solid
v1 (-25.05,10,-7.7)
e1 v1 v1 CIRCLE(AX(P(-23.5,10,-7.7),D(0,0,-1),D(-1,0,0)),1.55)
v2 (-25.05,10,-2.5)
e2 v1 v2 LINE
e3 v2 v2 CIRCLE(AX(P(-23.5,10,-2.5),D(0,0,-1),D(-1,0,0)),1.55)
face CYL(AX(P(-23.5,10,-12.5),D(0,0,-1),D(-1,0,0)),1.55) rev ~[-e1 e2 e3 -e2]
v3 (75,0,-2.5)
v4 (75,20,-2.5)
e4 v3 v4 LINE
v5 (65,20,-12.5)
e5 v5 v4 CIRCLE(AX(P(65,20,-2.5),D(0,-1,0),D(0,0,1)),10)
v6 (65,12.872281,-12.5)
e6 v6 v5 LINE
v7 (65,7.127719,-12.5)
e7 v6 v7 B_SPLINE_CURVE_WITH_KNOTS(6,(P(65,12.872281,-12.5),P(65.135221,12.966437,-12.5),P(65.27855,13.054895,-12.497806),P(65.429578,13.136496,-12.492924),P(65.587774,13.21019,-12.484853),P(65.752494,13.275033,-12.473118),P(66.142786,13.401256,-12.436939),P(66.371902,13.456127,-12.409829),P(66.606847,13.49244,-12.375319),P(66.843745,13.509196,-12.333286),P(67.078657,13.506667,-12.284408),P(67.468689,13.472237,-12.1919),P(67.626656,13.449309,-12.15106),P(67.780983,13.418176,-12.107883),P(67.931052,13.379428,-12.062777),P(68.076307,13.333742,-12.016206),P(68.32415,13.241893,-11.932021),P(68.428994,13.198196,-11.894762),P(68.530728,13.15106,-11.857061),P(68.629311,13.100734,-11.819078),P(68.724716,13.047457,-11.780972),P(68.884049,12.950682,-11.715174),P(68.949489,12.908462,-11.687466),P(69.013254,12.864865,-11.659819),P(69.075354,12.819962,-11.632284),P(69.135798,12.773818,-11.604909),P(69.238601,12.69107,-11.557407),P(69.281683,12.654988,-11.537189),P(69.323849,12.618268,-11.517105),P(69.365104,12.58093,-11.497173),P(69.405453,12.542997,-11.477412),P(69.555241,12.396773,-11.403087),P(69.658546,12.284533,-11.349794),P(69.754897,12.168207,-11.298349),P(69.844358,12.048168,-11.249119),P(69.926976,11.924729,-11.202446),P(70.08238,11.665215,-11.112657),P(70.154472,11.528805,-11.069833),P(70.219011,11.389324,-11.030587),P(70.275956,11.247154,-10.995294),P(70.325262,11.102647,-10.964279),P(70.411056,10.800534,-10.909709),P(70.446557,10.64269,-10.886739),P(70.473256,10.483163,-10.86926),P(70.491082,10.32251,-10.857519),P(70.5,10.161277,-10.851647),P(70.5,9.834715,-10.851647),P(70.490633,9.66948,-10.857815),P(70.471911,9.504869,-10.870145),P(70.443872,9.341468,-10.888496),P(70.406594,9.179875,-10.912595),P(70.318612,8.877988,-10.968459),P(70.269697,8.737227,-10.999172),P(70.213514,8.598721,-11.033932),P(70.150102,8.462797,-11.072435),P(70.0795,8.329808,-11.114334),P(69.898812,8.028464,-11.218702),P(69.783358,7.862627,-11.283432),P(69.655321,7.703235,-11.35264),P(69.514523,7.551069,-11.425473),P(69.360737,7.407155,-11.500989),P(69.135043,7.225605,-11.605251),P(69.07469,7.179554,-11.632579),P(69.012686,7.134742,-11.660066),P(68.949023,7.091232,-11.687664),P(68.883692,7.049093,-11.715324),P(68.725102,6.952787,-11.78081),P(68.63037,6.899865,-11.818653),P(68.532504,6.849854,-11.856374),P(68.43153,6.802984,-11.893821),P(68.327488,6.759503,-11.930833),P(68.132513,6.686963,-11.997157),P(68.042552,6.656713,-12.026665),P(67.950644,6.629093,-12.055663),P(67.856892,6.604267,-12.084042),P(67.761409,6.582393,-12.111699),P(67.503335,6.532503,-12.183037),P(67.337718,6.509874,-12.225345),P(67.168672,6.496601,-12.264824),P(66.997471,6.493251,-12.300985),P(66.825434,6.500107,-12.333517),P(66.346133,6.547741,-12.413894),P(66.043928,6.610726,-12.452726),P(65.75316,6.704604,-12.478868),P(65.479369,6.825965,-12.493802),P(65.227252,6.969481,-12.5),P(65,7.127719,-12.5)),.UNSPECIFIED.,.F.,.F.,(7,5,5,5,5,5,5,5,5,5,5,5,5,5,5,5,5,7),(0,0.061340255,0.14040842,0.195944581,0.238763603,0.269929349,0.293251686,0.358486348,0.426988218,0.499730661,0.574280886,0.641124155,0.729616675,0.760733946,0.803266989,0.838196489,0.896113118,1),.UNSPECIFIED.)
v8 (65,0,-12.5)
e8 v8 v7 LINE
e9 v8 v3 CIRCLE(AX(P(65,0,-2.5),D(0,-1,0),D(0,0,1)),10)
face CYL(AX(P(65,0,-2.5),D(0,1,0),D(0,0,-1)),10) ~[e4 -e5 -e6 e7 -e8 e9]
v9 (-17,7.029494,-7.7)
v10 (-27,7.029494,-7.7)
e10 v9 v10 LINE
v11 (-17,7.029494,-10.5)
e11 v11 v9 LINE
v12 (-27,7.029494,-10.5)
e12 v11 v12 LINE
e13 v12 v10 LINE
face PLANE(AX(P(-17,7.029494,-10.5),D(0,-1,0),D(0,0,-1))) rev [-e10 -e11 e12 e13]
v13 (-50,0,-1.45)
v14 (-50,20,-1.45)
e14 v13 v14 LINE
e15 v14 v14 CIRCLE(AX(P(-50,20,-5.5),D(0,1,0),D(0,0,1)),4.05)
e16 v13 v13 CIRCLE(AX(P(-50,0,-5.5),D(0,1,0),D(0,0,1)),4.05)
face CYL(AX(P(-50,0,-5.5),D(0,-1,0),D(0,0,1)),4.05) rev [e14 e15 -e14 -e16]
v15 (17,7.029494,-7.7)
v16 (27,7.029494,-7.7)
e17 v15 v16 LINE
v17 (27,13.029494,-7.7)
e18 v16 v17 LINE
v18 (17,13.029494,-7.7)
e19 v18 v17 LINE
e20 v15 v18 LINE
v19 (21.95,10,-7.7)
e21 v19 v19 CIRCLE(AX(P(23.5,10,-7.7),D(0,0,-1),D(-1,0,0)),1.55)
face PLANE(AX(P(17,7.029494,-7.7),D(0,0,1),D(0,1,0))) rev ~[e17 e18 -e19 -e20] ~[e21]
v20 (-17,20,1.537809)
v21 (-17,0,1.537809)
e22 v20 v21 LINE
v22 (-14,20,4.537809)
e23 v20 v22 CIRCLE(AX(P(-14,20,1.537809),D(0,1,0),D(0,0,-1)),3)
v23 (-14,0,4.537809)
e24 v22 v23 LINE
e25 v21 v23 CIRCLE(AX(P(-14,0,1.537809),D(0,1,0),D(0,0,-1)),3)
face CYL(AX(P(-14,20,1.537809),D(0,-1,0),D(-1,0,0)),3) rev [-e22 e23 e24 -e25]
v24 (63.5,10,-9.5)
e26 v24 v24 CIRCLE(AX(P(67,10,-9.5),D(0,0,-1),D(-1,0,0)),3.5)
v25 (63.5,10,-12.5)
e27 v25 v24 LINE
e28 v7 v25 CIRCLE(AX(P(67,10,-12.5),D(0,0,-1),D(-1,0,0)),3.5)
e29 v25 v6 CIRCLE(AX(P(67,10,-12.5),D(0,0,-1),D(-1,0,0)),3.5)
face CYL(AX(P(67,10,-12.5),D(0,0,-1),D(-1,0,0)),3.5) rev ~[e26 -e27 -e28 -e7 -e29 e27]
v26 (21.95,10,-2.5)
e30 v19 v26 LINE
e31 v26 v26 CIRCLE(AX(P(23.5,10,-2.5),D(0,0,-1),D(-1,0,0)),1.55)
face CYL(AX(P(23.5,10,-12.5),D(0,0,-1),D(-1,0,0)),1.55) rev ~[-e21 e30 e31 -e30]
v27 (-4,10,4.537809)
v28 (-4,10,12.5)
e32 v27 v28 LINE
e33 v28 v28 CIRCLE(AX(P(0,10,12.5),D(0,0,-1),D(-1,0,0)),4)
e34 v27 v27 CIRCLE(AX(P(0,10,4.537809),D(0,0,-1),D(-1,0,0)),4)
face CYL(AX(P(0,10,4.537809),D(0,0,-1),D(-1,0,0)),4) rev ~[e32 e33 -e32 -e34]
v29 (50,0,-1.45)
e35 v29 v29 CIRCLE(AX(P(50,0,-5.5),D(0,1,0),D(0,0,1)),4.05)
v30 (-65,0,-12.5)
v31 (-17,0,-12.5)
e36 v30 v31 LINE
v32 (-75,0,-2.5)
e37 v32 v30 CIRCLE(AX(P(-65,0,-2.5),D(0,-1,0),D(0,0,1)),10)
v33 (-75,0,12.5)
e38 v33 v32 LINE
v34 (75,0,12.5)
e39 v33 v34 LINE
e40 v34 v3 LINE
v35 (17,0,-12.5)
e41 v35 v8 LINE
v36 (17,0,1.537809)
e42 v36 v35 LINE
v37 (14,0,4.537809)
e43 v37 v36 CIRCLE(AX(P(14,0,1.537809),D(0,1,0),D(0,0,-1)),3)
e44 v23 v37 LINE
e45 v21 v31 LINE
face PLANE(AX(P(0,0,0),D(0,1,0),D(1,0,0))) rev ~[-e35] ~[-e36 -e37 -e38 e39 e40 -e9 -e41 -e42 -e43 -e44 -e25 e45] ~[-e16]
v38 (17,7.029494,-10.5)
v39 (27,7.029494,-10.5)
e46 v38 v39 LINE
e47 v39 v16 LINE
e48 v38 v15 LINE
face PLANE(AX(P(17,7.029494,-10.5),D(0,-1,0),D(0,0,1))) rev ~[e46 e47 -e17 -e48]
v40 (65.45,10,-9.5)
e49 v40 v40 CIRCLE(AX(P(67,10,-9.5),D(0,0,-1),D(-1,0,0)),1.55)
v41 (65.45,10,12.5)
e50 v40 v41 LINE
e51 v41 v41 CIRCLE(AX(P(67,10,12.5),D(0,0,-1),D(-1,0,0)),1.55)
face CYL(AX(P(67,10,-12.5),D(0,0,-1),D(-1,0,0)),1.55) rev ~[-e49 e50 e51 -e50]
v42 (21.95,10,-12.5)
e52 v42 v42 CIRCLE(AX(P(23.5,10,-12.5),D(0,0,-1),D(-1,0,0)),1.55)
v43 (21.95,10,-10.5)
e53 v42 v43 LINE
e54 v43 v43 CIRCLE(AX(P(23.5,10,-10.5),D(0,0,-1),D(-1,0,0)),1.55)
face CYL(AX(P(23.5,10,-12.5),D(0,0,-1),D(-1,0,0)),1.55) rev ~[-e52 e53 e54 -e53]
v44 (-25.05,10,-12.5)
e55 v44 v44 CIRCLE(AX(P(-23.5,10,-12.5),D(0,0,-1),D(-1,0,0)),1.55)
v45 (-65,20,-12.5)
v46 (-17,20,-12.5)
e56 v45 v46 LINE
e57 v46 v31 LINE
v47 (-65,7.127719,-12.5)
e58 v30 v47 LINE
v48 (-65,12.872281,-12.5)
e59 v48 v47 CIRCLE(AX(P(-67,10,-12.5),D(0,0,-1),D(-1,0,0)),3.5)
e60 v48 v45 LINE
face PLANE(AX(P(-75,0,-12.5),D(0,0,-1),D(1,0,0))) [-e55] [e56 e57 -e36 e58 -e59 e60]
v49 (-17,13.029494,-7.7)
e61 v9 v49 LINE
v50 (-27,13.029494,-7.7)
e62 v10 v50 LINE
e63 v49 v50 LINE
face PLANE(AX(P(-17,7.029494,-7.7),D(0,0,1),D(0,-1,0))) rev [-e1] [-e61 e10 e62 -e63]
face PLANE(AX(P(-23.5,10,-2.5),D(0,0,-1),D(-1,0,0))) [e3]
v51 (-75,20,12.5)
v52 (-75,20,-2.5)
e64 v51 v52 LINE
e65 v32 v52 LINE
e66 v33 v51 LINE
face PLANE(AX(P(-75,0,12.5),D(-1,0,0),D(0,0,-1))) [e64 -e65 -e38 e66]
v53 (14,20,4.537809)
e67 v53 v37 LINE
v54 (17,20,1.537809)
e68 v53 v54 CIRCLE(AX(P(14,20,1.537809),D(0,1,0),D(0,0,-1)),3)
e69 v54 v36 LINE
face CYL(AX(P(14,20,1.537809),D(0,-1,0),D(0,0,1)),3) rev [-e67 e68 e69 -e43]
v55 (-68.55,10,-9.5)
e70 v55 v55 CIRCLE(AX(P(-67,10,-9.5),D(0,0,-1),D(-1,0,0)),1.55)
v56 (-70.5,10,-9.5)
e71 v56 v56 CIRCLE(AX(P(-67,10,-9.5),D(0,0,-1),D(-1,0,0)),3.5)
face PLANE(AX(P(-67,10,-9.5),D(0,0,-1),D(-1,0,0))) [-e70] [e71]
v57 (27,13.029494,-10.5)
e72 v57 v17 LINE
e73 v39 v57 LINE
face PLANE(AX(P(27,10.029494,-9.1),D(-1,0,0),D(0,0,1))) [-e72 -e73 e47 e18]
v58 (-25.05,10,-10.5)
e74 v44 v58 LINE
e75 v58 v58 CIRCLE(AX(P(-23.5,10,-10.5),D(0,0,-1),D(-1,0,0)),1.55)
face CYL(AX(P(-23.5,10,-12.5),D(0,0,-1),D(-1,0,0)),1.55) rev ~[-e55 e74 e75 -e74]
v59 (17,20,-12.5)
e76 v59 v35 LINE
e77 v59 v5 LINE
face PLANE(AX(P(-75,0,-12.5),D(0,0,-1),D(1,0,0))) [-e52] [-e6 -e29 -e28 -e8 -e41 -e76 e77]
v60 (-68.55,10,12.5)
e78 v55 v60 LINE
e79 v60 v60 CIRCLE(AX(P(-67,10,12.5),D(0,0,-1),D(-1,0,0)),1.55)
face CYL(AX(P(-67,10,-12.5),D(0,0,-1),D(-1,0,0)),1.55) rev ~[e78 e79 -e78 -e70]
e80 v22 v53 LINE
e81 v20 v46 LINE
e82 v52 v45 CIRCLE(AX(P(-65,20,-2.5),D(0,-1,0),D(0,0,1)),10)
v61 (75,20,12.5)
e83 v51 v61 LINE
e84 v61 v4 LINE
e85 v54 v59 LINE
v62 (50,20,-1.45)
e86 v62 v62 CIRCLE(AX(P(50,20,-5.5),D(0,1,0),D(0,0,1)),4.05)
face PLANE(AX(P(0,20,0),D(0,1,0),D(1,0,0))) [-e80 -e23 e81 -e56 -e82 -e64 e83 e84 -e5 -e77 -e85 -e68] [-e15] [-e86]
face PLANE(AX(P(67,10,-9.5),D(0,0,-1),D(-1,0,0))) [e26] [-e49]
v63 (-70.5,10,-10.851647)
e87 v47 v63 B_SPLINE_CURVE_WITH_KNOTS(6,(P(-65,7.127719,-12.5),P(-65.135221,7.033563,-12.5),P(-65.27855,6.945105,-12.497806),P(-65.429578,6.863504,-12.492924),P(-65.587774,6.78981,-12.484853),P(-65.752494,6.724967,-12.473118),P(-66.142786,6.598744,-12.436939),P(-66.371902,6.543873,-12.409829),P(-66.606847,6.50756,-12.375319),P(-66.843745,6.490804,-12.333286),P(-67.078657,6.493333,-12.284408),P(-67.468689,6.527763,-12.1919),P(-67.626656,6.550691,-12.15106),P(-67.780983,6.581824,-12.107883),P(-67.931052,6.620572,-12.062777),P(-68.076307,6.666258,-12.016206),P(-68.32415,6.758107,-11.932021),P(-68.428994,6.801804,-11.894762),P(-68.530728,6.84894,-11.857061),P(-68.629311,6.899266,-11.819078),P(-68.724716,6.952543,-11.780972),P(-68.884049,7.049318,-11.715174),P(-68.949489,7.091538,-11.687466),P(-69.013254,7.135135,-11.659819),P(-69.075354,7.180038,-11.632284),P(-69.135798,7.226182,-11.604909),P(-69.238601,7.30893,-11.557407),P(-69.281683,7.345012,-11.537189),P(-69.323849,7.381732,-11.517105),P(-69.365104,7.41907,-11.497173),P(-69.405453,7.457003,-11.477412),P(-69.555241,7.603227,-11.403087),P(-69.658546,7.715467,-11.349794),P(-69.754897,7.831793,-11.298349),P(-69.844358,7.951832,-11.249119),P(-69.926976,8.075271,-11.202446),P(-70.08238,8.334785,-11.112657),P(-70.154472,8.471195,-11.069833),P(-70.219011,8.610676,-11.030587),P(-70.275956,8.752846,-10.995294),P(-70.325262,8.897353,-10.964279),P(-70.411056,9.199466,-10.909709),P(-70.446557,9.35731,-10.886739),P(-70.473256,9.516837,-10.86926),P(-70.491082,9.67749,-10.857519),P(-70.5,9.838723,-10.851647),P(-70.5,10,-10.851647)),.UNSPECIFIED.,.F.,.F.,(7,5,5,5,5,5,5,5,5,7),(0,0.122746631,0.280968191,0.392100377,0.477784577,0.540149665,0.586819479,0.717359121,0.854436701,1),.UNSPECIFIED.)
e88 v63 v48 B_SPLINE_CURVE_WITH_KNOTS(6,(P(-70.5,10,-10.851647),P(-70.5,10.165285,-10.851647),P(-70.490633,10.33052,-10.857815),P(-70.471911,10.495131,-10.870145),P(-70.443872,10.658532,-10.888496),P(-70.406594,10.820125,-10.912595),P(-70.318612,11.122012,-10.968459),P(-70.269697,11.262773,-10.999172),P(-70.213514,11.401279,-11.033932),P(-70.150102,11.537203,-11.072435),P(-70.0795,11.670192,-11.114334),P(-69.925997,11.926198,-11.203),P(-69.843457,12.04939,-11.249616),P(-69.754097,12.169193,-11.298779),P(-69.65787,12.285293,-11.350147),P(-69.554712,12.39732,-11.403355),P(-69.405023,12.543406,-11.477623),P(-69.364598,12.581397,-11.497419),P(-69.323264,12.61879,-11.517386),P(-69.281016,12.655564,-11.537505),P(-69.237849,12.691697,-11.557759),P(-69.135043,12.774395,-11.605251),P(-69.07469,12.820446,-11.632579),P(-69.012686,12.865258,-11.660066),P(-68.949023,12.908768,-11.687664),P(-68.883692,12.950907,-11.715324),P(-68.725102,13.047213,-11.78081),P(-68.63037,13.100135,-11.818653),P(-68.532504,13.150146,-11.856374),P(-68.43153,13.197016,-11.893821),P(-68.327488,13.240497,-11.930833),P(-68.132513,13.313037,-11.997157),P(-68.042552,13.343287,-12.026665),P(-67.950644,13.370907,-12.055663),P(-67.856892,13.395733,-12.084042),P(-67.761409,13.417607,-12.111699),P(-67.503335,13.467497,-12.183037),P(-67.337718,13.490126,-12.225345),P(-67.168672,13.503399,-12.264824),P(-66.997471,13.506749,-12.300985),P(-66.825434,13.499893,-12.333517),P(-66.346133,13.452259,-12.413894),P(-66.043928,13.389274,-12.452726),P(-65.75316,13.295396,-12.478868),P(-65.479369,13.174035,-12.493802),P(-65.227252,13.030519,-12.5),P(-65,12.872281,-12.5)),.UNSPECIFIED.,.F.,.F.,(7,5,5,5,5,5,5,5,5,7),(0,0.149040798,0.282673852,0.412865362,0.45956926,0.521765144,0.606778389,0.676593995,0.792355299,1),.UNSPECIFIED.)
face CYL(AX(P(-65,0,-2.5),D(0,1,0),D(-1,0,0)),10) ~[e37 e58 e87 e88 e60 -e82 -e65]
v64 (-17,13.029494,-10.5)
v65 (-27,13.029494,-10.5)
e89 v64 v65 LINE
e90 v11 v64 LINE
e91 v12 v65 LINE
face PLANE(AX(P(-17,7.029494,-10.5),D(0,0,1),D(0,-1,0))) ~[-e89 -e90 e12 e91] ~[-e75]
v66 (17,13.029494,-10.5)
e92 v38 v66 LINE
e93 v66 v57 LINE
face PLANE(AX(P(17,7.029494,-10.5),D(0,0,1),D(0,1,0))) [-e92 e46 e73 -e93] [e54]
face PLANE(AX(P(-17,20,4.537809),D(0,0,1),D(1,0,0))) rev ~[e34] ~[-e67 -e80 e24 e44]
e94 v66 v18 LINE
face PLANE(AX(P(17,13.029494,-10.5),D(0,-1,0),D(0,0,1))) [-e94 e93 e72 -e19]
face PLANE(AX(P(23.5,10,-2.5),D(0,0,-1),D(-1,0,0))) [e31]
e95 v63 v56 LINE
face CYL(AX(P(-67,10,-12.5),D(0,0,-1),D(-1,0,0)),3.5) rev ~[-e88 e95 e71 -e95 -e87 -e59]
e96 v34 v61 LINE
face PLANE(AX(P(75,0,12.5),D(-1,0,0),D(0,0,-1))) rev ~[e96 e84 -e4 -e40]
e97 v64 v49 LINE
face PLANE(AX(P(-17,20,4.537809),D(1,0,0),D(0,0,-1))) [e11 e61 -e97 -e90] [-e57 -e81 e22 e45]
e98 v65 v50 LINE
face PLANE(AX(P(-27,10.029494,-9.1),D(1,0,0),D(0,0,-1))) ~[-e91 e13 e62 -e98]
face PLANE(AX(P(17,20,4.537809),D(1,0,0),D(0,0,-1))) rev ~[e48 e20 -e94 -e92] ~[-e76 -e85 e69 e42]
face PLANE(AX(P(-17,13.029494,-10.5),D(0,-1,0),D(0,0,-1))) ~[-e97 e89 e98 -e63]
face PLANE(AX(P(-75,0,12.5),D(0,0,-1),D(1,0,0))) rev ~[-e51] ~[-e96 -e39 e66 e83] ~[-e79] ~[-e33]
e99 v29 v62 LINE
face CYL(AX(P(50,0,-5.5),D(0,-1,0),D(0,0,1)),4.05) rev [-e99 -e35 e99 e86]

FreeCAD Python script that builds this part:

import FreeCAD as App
import Part
import Sketcher
Q = App.Units.Quantity


def edges_at(feature, points):
    """Names of the edges that pass closest to the given points."""
    edges = feature.Shape.Edges
    near = lambda p: min(range(len(edges)), key=lambda i: edges[i].distToShape(Part.Vertex(*p))[0])
    return sorted({f"Edge{near(p) + 1}" for p in points})

doc = App.newDocument("Part")
body = doc.addObject("PartDesign::Body", "Body")

# Sketch on XZ plane
sketch1 = body.newObject("Sketcher::SketchObject", "Sketch")
sketch1.AttachmentSupport = (doc.getObject("XZ_Plane"), [""])
sketch1.MapMode = "FlatFace"
sketch1.addGeometry([
    Part.LineSegment(App.Vector(-75, -12.5, 0), App.Vector(-75, 12.5, 0)),  # 0
    Part.LineSegment(App.Vector(-75, 12.5, 0), App.Vector(75, 12.5, 0)),  # 1
    Part.LineSegment(App.Vector(75, 12.5, 0), App.Vector(75, -12.5, 0)),  # 2
    Part.LineSegment(App.Vector(75, -12.5, 0), App.Vector(-75, -12.5, 0)),  # 3
    Part.Circle(App.Vector(-50, -5.5, 0), App.Vector(0, 0, 1), 4),  # 4
    Part.Circle(App.Vector(50, -5.5, 0), App.Vector(0, 0, 1), 4),  # 5
], False)
sketch1.addConstraint([
    Sketcher.Constraint("Coincident", 0, 2, 1, 1),
    Sketcher.Constraint("Coincident", 1, 2, 2, 1),
    Sketcher.Constraint("Coincident", 2, 2, 3, 1),
    Sketcher.Constraint("Coincident", 3, 2, 0, 1),
    Sketcher.Constraint("Vertical", 0),
    Sketcher.Constraint("Horizontal", 1),
    Sketcher.Constraint("Vertical", 2),
    Sketcher.Constraint("Horizontal", 3),
    Sketcher.Constraint("Equal", 4, 5),
    Sketcher.Constraint("Symmetric", 0, 2, 2, 2, -1, 1),
    Sketcher.Constraint("Symmetric", 4, 3, 5, 3, -2),
    Sketcher.Constraint("Diameter", 4, Q("8.1 mm")),
    Sketcher.Constraint("DistanceX", 1, 1, 1, 2, Q("150 mm")),
    Sketcher.Constraint("DistanceY", 0, 1, 0, 2, Q("25 mm")),
    Sketcher.Constraint("DistanceX", 4, 3, -1, 1, Q("50 mm")),
    Sketcher.Constraint("DistanceY", 4, 3, 0, 2, Q("18 mm")),
])
pad1 = body.newObject("PartDesign::Pad", "Pad")
pad1.Profile = sketch1
pad1.Length = 20
pad1.Reversed = True
doc.recompute()

fillet = body.newObject("PartDesign::Fillet", "Fillet")
fillet.Base = (pad1, edges_at(pad1, [(-75, 10, -12.5), (75, 10, -12.5)]))
fillet.Radius = 10

# Sketch on XY plane
sketch2 = body.newObject("Sketcher::SketchObject", "Sketch001")
sketch2.AttachmentSupport = (doc.getObject("XY_Plane"), [""])
sketch2.MapMode = "FlatFace"
sketch2.AttachmentOffset = App.Placement(App.Vector(0, 0, -12.5), App.Rotation())
sketch2.addGeometry([
    Part.Circle(App.Vector(67, 10, 0), App.Vector(0, 0, 1), 1.6),
    Part.Circle(App.Vector(-67, 10, 0), App.Vector(0, 0, 1), 1.6),
], False)
sketch2.addConstraint([
    Sketcher.Constraint("Equal", 0, 1),
    Sketcher.Constraint("Symmetric", 0, 3, 1, 3, -2),
    Sketcher.Constraint("Diameter", 0, Q("3.1 mm")),
    Sketcher.Constraint("DistanceX", -1, 1, 0, 3, Q("67 mm")),
    Sketcher.Constraint("DistanceY", -1, 1, 0, 3, Q("10 mm")),
])
pocket1 = body.newObject("PartDesign::Pocket", "Pocket")
pocket1.Profile = sketch2
pocket1.Type = "ThroughAll"
pocket1.Reversed = True

# Sketch on XY plane
sketch3 = body.newObject("Sketcher::SketchObject", "Sketch002")
sketch3.AttachmentSupport = (doc.getObject("XY_Plane"), [""])
sketch3.MapMode = "FlatFace"
sketch3.AttachmentOffset = App.Placement(App.Vector(0, 0, -12.5), App.Rotation())
sketch3.addGeometry([
    Part.Circle(App.Vector(67, 10, 0), App.Vector(0, 0, 1), 3.5),
    Part.Circle(App.Vector(67, 10, 0), App.Vector(0, 0, 1), 1.6),
    Part.Circle(App.Vector(-67, 10, 0), App.Vector(0, 0, 1), 3.5),
    Part.Circle(App.Vector(-67, 10, 0), App.Vector(0, 0, 1), 1.6),
], False)
sketch3.addConstraint([
    Sketcher.Constraint("Coincident", 1, 3, 0, 3),
    Sketcher.Constraint("Coincident", 3, 3, 2, 3),
    Sketcher.Constraint("Equal", 0, 2),
    Sketcher.Constraint("Equal", 1, 3),
    Sketcher.Constraint("Symmetric", 0, 3, 2, 3, -2),
    Sketcher.Constraint("Diameter", 0, Q("7 mm")),
    Sketcher.Constraint("Diameter", 1, Q("3.1 mm")),
    Sketcher.Constraint("DistanceX", -1, 1, 0, 3, Q("67 mm")),
    Sketcher.Constraint("DistanceY", -1, 1, 0, 3, Q("10 mm")),
])
pocket2 = body.newObject("PartDesign::Pocket", "Pocket001")
pocket2.Profile = sketch3
pocket2.Length = 3
pocket2.Reversed = True

# Sketch on XZ plane
sketch4 = body.newObject("Sketcher::SketchObject", "Sketch003")
sketch4.AttachmentSupport = (doc.getObject("XZ_Plane"), [""])
sketch4.MapMode = "FlatFace"
sketch4.AttachmentOffset = App.Placement(App.Vector(0, 0, -20), App.Rotation())
sketch4.addGeometry([
    Part.LineSegment(App.Vector(-17, -30, 0), App.Vector(-17, 5, 0)),
    Part.LineSegment(App.Vector(-17, 5, 0), App.Vector(17, 5, 0)),
    Part.LineSegment(App.Vector(17, 5, 0), App.Vector(17, -30, 0)),
    Part.LineSegment(App.Vector(17, -30, 0), App.Vector(-17, -30, 0)),
], False)
sketch4.addConstraint([
    Sketcher.Constraint("Coincident", 0, 2, 1, 1),
    Sketcher.Constraint("Coincident", 1, 2, 2, 1),
    Sketcher.Constraint("Coincident", 2, 2, 3, 1),
    Sketcher.Constraint("Coincident", 3, 2, 0, 1),
    Sketcher.Constraint("Vertical", 0),
    Sketcher.Constraint("Horizontal", 1),
    Sketcher.Constraint("Vertical", 2),
    Sketcher.Constraint("Horizontal", 3),
    Sketcher.Constraint("DistanceX", 1, 1, 1, 2, Q("34 mm")),
    Sketcher.Constraint("DistanceX", 0, 2, -1, 1, Q("17 mm")),
    Sketcher.Constraint("DistanceY", 0, 1, 0, 2, Q("34.075618 mm")),
    Sketcher.Constraint("DistanceY", -1, 1, 0, 2, Q("4.537809 mm")),
])
pocket3 = body.newObject("PartDesign::Pocket", "Pocket002")
pocket3.Profile = sketch4
pocket3.Type = "ThroughAll"
pocket3.Reversed = True

# Sketch on XY plane
sketch5 = body.newObject("Sketcher::SketchObject", "Sketch004")
sketch5.AttachmentSupport = (doc.getObject("XY_Plane"), [""])
sketch5.MapMode = "FlatFace"
sketch5.AttachmentOffset = App.Placement(App.Vector(0, 0, 4.537809), App.Rotation())
sketch5.addGeometry(Part.Circle(App.Vector(0, 10, 0), App.Vector(0, 0, 1), 4), False)
sketch5.addConstraint([
    Sketcher.Constraint("PointOnObject", 0, 3, -2),
    Sketcher.Constraint("Diameter", 0, Q("8 mm")),
    Sketcher.Constraint("DistanceY", -1, 1, 0, 3, Q("10 mm")),
])
pocket4 = body.newObject("PartDesign::Pocket", "Pocket003")
pocket4.Profile = sketch5
pocket4.Length = 10
pocket4.Reversed = True
doc.recompute()

fillet2 = body.newObject("PartDesign::Fillet", "Fillet001")
fillet2.Base = (pocket4, edges_at(pocket4, [(-17, 10, 4.538), (17, 10, 4.538)]))
fillet2.Radius = 3

# Sketch on XY plane
sketch6 = body.newObject("Sketcher::SketchObject", "Sketch005")
sketch6.AttachmentSupport = (doc.getObject("XY_Plane"), [""])
sketch6.MapMode = "FlatFace"
sketch6.AttachmentOffset = App.Placement(App.Vector(0, 0, -12.5), App.Rotation())
sketch6.addGeometry([
    Part.Circle(App.Vector(23.5, 10, 0), App.Vector(0, 0, 1), 1.6),
    Part.Circle(App.Vector(-23.5, 10, 0), App.Vector(0, 0, 1), 1.6),
], False)
sketch6.addConstraint([
    Sketcher.Constraint("Equal", 0, 1),
    Sketcher.Constraint("Symmetric", 0, 3, 1, 3, -2),
    Sketcher.Constraint("Diameter", 0, Q("3.1 mm")),
    Sketcher.Constraint("DistanceY", -1, 1, 0, 3, Q("10 mm")),
    Sketcher.Constraint("DistanceX", 1, 3, 0, 3, Q("47 mm")),
])
pocket5 = body.newObject("PartDesign::Pocket", "Pocket004")
pocket5.Profile = sketch6
pocket5.Length = 10
pocket5.Reversed = True

# Sketch on YZ plane
sketch7 = body.newObject("Sketcher::SketchObject", "Sketch006")
sketch7.AttachmentSupport = (doc.getObject("YZ_Plane"), [""])
sketch7.MapMode = "FlatFace"
sketch7.AttachmentOffset = App.Placement(App.Vector(0, 0, 17), App.Rotation())
sketch7.addGeometry([
    Part.LineSegment(App.Vector(13, -10.5, 0), App.Vector(7, -10.5, 0)),
    Part.LineSegment(App.Vector(7, -10.5, 0), App.Vector(7, -7.7, 0)),
    Part.LineSegment(App.Vector(7, -7.7, 0), App.Vector(13, -7.7, 0)),
    Part.LineSegment(App.Vector(13, -7.7, 0), App.Vector(13, -10.5, 0)),
], False)
sketch7.addConstraint([
    Sketcher.Constraint("Coincident", 0, 2, 1, 1),
    Sketcher.Constraint("Coincident", 1, 2, 2, 1),
    Sketcher.Constraint("Coincident", 2, 2, 3, 1),
    Sketcher.Constraint("Coincident", 3, 2, 0, 1),
    Sketcher.Constraint("Horizontal", 0),
    Sketcher.Constraint("Vertical", 1),
    Sketcher.Constraint("Horizontal", 2),
    Sketcher.Constraint("Vertical", 3),
    Sketcher.Constraint("DistanceX", 0, 2, 0, 1, Q("6 mm")),
    Sketcher.Constraint("DistanceY", 1, 1, 1, 2, Q("2.8 mm")),
    Sketcher.Constraint("DistanceY", 0, 2, -1, 1, Q("10.5 mm")),
    Sketcher.Constraint("DistanceX", -1, 1, 0, 2, Q("7.029494 mm")),
])
pocket6 = body.newObject("PartDesign::Pocket", "Pocket005")
pocket6.Profile = sketch7
pocket6.Length = 10
pocket6.Reversed = True
doc.recompute()

mirrored = body.newObject("PartDesign::Mirrored", "Mirrored")
mirrored.Originals = [pocket6]
mirrored.MirrorPlane = (doc.getObject("YZ_Plane"), [""])
body.Tip = mirrored

doc.recompute()
